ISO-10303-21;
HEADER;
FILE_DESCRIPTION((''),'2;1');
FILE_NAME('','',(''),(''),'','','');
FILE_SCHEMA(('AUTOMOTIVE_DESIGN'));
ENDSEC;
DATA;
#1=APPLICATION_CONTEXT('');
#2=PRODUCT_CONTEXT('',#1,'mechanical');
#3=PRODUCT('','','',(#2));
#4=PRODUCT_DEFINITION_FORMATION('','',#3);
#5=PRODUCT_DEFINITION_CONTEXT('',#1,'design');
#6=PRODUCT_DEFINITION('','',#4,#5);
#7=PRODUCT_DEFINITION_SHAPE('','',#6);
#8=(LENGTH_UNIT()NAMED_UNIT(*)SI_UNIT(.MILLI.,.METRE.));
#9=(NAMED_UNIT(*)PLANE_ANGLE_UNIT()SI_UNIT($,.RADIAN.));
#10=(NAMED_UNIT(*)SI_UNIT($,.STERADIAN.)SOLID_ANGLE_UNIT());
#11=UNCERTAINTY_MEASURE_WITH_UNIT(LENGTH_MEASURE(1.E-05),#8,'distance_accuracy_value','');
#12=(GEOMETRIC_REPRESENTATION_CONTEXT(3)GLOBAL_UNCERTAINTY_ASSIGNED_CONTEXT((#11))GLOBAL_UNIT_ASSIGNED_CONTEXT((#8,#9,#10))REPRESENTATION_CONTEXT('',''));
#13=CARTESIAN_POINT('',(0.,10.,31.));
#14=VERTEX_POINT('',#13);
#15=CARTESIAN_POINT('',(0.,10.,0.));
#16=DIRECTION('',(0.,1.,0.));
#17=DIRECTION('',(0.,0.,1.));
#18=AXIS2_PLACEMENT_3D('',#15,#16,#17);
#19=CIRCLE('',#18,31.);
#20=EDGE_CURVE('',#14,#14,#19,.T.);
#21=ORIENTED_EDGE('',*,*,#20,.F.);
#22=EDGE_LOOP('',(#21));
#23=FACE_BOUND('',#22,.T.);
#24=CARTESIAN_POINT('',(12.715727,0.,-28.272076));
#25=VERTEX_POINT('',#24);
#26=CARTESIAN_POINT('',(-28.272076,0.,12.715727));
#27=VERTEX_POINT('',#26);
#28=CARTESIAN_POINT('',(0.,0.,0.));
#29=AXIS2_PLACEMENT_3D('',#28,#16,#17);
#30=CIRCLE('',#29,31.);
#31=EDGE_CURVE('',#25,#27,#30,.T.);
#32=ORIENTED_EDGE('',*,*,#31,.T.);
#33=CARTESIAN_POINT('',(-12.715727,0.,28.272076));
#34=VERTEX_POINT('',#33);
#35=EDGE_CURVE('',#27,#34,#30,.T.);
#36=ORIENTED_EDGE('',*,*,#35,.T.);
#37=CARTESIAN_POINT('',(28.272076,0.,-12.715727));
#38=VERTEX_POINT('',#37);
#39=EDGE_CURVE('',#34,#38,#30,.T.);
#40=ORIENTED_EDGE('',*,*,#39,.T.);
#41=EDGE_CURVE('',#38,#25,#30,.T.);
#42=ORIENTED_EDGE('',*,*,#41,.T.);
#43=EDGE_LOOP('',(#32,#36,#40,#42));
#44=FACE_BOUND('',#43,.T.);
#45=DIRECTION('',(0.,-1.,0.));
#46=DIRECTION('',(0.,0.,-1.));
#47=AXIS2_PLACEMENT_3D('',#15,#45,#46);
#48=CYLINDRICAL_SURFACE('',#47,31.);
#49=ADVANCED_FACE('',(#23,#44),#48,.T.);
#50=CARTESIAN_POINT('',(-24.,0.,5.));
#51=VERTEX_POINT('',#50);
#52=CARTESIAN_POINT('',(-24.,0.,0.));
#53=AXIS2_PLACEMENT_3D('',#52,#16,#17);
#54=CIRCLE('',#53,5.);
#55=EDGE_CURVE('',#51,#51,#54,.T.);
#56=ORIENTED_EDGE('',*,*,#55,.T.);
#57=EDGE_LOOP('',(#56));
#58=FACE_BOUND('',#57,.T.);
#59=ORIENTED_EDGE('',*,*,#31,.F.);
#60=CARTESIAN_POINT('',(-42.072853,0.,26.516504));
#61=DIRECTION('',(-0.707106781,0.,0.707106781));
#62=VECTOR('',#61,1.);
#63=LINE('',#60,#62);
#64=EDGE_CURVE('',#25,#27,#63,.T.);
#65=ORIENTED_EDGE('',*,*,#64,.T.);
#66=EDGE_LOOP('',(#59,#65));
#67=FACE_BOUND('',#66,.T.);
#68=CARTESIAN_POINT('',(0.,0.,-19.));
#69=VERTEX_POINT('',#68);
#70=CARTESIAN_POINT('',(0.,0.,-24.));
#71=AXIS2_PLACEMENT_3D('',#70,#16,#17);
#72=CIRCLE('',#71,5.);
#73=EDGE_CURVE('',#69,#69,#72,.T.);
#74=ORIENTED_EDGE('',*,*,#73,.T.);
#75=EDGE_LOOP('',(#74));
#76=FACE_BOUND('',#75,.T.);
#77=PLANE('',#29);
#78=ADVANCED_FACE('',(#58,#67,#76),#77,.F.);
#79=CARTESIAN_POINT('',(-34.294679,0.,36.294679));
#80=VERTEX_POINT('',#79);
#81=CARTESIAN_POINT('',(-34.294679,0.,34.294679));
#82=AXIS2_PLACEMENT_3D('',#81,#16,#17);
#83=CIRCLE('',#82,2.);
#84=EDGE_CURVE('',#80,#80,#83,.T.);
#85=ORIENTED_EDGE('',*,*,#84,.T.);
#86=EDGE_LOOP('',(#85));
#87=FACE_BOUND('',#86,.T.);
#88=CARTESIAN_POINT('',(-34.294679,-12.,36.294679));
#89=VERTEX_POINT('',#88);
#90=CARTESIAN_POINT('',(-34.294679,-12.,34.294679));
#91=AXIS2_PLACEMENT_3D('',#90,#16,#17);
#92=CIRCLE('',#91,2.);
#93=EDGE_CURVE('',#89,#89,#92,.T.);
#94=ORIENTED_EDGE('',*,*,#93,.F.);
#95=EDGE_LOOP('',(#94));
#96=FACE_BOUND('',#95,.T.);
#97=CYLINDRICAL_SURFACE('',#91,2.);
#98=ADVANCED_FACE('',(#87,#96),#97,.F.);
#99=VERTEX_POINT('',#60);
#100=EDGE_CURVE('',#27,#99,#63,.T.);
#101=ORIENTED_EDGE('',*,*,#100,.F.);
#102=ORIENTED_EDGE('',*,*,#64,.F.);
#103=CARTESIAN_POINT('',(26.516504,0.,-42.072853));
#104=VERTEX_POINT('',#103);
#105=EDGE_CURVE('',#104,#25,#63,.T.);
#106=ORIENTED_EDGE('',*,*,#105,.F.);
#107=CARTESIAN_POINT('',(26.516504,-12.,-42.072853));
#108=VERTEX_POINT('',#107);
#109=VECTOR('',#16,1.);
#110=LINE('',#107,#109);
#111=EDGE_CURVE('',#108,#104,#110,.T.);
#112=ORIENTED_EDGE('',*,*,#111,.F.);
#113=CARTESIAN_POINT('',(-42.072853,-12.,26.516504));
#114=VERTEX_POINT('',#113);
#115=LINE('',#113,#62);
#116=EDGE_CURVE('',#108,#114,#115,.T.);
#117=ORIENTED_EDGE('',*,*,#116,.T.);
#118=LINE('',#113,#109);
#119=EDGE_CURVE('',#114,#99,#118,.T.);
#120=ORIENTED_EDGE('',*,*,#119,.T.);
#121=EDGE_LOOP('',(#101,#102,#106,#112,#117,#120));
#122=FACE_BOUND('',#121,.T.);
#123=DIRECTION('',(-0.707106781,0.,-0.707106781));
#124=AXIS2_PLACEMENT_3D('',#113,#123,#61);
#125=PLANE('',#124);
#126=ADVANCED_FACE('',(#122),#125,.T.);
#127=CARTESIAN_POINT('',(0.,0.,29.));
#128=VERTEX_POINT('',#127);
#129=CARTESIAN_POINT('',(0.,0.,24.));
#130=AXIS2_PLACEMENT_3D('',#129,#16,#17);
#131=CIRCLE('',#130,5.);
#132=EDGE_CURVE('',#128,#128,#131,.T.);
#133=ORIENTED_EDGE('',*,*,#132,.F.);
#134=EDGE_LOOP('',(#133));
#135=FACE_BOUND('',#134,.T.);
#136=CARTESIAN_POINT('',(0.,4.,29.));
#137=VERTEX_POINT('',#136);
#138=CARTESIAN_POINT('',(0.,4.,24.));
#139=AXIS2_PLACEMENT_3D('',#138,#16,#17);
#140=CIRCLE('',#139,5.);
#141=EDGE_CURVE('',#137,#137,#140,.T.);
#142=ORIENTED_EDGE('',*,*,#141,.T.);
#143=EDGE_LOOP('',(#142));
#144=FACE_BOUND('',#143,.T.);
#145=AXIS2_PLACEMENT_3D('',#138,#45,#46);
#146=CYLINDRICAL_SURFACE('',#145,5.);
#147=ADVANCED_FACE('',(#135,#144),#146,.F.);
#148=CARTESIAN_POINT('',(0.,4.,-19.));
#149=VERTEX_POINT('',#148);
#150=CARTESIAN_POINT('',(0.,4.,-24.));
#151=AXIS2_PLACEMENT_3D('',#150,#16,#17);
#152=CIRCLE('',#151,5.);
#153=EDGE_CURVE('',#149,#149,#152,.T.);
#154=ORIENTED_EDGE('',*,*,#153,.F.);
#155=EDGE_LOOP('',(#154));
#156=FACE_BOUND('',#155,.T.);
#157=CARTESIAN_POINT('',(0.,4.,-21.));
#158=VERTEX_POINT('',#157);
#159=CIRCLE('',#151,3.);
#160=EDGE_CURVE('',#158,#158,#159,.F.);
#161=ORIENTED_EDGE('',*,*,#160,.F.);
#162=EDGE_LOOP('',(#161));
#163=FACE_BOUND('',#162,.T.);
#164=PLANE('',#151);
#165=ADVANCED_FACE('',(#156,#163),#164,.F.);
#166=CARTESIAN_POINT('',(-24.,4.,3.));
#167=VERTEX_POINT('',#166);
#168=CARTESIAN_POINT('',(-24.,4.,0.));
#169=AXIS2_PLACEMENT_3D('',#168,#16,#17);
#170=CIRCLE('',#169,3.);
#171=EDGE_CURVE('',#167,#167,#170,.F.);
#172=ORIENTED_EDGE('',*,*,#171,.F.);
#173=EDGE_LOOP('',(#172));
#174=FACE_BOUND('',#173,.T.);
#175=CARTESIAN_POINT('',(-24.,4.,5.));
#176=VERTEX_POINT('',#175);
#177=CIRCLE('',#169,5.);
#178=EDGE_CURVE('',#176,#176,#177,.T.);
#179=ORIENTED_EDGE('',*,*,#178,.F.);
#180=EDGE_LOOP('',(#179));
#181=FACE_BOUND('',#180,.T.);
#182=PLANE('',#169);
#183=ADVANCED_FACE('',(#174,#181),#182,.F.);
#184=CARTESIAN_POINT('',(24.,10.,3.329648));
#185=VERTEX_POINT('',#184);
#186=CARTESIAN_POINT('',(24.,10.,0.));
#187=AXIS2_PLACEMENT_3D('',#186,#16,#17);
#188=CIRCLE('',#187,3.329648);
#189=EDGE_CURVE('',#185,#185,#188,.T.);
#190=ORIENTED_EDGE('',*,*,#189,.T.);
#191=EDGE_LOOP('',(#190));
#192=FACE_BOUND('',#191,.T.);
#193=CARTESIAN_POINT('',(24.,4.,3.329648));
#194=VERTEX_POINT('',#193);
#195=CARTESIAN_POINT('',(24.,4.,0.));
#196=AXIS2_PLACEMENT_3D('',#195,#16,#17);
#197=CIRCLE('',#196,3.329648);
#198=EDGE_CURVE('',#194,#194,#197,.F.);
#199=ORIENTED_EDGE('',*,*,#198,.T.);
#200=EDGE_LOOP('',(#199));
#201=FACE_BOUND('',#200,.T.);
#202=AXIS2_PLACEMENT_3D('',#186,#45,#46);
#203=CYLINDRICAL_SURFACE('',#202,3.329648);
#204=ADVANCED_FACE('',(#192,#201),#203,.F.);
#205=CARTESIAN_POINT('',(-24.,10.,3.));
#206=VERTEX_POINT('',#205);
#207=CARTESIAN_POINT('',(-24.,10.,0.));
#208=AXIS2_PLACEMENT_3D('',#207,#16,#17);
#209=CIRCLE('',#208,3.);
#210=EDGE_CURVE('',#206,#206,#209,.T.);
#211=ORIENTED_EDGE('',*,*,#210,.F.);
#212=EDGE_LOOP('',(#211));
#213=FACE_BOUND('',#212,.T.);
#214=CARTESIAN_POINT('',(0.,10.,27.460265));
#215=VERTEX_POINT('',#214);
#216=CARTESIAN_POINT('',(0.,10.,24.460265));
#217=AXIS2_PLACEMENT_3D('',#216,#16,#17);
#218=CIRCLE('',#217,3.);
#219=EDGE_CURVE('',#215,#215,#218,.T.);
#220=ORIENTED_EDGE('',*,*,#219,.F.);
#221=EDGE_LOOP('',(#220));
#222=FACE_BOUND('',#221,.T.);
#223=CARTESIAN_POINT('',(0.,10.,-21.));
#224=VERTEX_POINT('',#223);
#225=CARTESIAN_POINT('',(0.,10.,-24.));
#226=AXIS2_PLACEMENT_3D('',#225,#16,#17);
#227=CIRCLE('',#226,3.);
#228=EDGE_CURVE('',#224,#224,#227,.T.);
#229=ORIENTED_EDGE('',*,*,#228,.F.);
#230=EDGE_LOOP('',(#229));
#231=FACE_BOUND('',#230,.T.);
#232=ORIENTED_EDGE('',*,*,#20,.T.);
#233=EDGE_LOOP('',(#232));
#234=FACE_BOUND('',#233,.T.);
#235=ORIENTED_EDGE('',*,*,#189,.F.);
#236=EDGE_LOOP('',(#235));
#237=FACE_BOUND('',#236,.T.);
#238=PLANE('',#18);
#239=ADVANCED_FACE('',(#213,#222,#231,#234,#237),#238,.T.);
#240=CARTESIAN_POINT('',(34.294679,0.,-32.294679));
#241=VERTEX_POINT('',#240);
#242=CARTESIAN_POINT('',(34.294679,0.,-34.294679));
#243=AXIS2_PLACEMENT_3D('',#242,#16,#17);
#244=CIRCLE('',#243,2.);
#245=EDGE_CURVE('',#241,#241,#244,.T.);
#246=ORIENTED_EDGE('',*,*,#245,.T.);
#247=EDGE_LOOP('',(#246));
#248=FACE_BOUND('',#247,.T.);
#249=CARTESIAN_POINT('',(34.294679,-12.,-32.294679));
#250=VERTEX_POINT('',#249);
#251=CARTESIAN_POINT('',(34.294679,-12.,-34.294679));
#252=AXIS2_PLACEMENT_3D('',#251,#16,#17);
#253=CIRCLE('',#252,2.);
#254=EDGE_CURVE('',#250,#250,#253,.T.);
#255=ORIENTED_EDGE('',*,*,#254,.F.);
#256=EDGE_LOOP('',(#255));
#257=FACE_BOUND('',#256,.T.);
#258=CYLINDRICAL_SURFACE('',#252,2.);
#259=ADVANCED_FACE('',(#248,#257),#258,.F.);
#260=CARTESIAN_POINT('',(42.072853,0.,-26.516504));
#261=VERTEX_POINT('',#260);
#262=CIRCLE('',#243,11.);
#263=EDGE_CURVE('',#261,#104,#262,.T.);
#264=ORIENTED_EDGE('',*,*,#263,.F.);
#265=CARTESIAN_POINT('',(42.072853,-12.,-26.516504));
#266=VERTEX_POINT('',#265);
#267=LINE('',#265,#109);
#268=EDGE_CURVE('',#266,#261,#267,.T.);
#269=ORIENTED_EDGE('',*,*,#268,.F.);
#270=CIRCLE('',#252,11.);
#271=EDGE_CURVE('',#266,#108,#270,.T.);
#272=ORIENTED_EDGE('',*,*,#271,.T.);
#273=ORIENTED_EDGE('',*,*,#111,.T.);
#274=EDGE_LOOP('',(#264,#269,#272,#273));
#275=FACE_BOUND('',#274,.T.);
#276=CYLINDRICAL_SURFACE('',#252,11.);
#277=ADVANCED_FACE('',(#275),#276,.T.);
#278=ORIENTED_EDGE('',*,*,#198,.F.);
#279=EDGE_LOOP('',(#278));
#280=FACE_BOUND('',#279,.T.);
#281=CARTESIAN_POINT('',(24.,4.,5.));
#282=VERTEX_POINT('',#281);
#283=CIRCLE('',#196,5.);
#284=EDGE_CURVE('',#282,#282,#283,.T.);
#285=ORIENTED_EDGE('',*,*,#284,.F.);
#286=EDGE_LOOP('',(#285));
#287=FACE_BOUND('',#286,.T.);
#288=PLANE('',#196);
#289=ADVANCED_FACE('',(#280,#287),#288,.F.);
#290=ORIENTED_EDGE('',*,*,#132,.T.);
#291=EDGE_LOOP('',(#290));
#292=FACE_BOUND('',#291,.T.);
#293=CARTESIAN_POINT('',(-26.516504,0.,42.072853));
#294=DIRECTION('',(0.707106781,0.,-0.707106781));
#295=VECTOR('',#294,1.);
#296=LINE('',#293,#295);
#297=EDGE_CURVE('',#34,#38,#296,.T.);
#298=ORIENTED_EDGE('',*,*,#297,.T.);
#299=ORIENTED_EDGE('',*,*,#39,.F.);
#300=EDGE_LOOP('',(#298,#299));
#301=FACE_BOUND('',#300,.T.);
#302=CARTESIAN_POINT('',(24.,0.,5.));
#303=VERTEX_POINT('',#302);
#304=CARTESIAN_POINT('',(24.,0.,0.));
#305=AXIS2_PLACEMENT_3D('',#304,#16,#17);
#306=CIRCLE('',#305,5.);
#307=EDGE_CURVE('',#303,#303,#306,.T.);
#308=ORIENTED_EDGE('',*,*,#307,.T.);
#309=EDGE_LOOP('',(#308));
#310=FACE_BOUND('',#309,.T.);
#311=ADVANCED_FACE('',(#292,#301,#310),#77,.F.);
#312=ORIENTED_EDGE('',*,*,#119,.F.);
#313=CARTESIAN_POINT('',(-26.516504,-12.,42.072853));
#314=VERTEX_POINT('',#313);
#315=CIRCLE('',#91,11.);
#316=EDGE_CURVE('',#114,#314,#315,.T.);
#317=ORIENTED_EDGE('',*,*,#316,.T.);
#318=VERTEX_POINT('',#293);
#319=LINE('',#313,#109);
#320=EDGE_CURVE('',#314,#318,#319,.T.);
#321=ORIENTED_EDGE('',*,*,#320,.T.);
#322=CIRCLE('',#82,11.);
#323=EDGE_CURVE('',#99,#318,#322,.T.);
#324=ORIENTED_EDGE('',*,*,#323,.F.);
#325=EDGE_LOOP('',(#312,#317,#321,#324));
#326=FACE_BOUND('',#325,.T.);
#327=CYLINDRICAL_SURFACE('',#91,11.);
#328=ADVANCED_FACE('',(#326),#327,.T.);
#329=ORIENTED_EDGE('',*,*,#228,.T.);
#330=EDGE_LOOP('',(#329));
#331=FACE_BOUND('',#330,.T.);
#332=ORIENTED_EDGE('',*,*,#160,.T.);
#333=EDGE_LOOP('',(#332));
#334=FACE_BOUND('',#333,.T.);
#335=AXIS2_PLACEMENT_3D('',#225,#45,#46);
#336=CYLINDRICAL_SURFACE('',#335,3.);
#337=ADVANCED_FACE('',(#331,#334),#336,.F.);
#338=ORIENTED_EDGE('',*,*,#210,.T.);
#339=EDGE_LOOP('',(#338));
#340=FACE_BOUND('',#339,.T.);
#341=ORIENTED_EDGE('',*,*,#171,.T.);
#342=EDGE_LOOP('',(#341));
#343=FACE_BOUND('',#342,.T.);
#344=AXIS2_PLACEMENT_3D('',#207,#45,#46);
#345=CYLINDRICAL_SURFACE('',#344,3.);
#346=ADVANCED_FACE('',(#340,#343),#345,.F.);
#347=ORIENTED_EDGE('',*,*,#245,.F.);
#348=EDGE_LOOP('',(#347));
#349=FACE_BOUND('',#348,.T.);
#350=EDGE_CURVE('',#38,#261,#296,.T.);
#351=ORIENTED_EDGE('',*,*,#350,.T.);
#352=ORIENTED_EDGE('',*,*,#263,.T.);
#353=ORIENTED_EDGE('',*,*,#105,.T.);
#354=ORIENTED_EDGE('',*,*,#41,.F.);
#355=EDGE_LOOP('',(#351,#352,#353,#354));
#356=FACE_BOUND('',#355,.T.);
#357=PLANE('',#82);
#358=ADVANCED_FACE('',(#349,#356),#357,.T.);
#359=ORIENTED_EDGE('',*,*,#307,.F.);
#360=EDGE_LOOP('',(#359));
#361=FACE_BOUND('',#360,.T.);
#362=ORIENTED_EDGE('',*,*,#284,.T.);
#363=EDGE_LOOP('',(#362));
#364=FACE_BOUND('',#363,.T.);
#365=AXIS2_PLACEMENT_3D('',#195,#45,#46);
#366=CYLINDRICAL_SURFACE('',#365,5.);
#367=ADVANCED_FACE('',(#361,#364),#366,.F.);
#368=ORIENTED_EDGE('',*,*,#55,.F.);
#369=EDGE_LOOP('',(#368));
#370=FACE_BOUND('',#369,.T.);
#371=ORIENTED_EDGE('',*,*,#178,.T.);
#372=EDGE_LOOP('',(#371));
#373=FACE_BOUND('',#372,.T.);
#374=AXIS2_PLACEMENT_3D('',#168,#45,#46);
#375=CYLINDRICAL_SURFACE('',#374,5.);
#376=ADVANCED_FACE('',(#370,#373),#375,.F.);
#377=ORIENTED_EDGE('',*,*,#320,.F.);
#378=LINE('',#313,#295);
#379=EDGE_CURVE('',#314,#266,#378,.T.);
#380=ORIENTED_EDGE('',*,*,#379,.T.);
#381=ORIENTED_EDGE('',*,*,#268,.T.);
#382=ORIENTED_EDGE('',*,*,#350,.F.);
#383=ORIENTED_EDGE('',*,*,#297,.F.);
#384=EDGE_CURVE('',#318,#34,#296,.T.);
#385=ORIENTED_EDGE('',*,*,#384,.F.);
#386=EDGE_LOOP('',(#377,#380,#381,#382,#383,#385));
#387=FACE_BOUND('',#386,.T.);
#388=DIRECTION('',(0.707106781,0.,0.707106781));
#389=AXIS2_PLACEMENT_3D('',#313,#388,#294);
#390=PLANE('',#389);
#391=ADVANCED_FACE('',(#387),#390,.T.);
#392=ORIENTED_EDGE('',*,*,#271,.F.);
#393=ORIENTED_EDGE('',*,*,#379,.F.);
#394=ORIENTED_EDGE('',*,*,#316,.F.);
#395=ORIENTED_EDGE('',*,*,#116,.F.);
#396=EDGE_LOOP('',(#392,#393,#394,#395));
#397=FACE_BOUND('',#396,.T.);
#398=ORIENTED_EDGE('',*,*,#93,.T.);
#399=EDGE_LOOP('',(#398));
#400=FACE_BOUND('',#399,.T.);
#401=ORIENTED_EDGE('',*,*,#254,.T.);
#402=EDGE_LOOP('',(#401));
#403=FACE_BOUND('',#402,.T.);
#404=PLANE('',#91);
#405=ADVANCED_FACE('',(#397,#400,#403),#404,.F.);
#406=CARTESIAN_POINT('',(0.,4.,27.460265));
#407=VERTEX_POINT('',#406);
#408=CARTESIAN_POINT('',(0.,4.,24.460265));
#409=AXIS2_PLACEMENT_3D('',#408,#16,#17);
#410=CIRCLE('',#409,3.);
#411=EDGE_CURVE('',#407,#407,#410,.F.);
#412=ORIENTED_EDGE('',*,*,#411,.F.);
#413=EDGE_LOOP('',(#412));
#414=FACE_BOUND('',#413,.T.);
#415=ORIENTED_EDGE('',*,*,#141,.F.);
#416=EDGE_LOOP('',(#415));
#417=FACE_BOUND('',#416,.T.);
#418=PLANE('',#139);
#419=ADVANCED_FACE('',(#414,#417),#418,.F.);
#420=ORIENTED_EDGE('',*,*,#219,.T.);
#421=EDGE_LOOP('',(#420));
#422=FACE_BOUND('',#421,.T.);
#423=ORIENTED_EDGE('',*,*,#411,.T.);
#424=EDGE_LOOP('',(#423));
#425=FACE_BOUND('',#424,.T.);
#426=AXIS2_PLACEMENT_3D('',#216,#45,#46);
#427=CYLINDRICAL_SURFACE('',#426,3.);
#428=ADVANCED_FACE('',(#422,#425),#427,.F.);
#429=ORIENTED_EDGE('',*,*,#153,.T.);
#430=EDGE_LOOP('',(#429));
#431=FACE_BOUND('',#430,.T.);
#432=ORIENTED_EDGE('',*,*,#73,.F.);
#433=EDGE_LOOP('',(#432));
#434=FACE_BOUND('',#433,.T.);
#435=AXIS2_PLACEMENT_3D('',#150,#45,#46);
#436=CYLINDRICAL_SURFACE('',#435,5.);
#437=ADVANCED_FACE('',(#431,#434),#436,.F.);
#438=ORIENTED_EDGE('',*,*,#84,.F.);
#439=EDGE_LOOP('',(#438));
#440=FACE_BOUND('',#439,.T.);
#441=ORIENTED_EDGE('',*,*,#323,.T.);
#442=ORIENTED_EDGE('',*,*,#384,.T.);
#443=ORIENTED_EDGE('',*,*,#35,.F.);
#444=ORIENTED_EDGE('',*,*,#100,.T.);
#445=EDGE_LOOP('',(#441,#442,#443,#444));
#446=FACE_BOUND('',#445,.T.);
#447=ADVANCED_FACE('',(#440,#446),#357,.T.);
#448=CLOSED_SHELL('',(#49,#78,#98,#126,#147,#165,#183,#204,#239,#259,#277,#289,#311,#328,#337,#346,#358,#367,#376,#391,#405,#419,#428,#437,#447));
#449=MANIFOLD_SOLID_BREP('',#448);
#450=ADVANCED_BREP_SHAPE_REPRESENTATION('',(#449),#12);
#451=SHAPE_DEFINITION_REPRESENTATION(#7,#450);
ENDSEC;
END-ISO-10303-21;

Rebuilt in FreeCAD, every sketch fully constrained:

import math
import FreeCAD as App
import Part
import Sketcher
Q = App.Units.Quantity

doc = App.newDocument("Part")
params = doc.addObject("Spreadsheet::Sheet", "Params")
for row, (alias, value) in enumerate([
    ("sketch1_diameter", "62 mm"),
    ("pad1_length", "10 mm"),
    ("sketch2_diameter", "10 mm"),
    ("pocket1_length", "4 mm"),
    ("sketch3_diameter", "10 mm"),
    ("pocket2_length", "4 mm"),
    ("sketch4_diameter", "6 mm"),
    ("pocket3_length", "10 mm"),
    ("sketch5_diameter", "4 mm"),
    ("sketch5_radius", "11 mm"),
    ("sketch5_length", "97 mm"),
    ("pad2_length", "12 mm"),
], start=1):
    params.set(f"A{row}", alias)
    params.set(f"B{row}", "=" + value)
    params.setAlias(f"B{row}", alias)

body = doc.addObject("PartDesign::Body", "Body")

# Sketch on XZ plane
sketch1 = doc.addObject("Sketcher::SketchObject", "Sketch")
body.addObject(sketch1)
sketch1.AttachmentSupport = (doc.XZ_Plane, [""])
sketch1.MapMode = "FlatFace"
sketch1.addGeometry(Part.Circle(App.Vector(0, 0, 0), App.Vector(0, 0, 1), 31), False)
sketch1.addConstraint([
    Sketcher.Constraint("Coincident", 0, 3, -1, 1),
    Sketcher.Constraint("Diameter", 0, 62.0),
])
sketch1.setExpression("Constraints[1]", "Params.sketch1_diameter")
pad1 = doc.addObject("PartDesign::Pad", "Pad")
body.addObject(pad1)
pad1.Profile = sketch1
pad1.setExpression("Length", "Params.pad1_length")
pad1.Reversed = True

# Sketch on XZ plane
sketch2 = doc.addObject("Sketcher::SketchObject", "Sketch001")
body.addObject(sketch2)
sketch2.AttachmentSupport = (doc.XZ_Plane, [""])
sketch2.MapMode = "FlatFace"
sketch2.addGeometry(Part.Circle(App.Vector(0, -24, 0), App.Vector(0, 0, 1), 5), False)
sketch2.addConstraint([
    Sketcher.Constraint("PointOnObject", 0, 3, -2),
    Sketcher.Constraint("Diameter", 0, 10.0),
    Sketcher.Constraint("DistanceY", 0, 3, -1, 1, 24.0),
])
sketch2.setExpression("Constraints[1]", "Params.sketch2_diameter")
pocket1 = doc.addObject("PartDesign::Pocket", "Pocket")
body.addObject(pocket1)
pocket1.Profile = sketch2
pocket1.setExpression("Length", "Params.pocket1_length")

# Sketch on XZ plane
sketch3 = doc.addObject("Sketcher::SketchObject", "Sketch002")
body.addObject(sketch3)
sketch3.AttachmentSupport = (doc.XZ_Plane, [""])
sketch3.MapMode = "FlatFace"
sketch3.addGeometry([
    Part.Circle(App.Vector(-24, 0, 0), App.Vector(0, 0, 1), 5),
    Part.Circle(App.Vector(24, 0, 0), App.Vector(0, 0, 1), 5),
    Part.Circle(App.Vector(0, 24, 0), App.Vector(0, 0, 1), 5),
], False)
sketch3.addConstraint([
    Sketcher.Constraint("Equal", 0, 1),
    Sketcher.Constraint("Equal", 1, 2),
    Sketcher.Constraint("Symmetric", 0, 3, 1, 3, -1, 1),
    Sketcher.Constraint("PointOnObject", 0, 3, -1),
    Sketcher.Constraint("PointOnObject", 2, 3, -2),
    Sketcher.Constraint("Diameter", 0, 10.0),
    Sketcher.Constraint("DistanceX", 0, 3, -1, 1, 24.0),
    Sketcher.Constraint("DistanceY", -1, 1, 2, 3, 24.0),
])
sketch3.setExpression("Constraints[5]", "Params.sketch3_diameter")
pocket2 = doc.addObject("PartDesign::Pocket", "Pocket001")
body.addObject(pocket2)
pocket2.Profile = sketch3
pocket2.setExpression("Length", "Params.pocket2_length")

# Sketch on XZ plane
sketch4 = doc.addObject("Sketcher::SketchObject", "Sketch003")
body.addObject(sketch4)
sketch4.AttachmentSupport = (doc.XZ_Plane, [""])
sketch4.MapMode = "FlatFace"
sketch4.addGeometry([
    Part.Circle(App.Vector(0, 24.5, 0), App.Vector(0, 0, 1), 3),
    Part.Circle(App.Vector(-24, 0, 0), App.Vector(0, 0, 1), 3),
    Part.Circle(App.Vector(24, 0, 0), App.Vector(0, 0, 1), 3.3),
    Part.Circle(App.Vector(0, -24, 0), App.Vector(0, 0, 1), 3),
], False)
sketch4.addConstraint([
    Sketcher.Constraint("Equal", 0, 1),
    Sketcher.Constraint("Equal", 1, 3),
    Sketcher.Constraint("Symmetric", 1, 3, 2, 3, -1, 1),
    Sketcher.Constraint("PointOnObject", 0, 3, -2),
    Sketcher.Constraint("PointOnObject", 1, 3, -1),
    Sketcher.Constraint("PointOnObject", 3, 3, -2),
    Sketcher.Constraint("Diameter", 0, 6.0),
    Sketcher.Constraint("DistanceX", 1, 3, -1, 1, 24.0),
    Sketcher.Constraint("DistanceY", 3, 3, -1, 1, 24.0),
    Sketcher.Constraint("Diameter", 2, 6.659296),
    Sketcher.Constraint("DistanceY", -1, 1, 0, 3, 24.460265),
])
sketch4.setExpression("Constraints[6]", "Params.sketch4_diameter")
pocket3 = doc.addObject("PartDesign::Pocket", "Pocket002")
body.addObject(pocket3)
pocket3.Profile = sketch4
pocket3.setExpression("Length", "Params.pocket3_length")

# Sketch on XZ plane
sketch5 = doc.addObject("Sketcher::SketchObject", "Sketch004")
body.addObject(sketch5)
sketch5.AttachmentSupport = (doc.XZ_Plane, [""])
sketch5.MapMode = "FlatFace"
sketch5.addGeometry([
    Part.LineSegment(App.Vector(26.5, -42.1, 0), App.Vector(-42.1, 26.5, 0)),  # 0
    Part.ArcOfCircle(Part.Circle(App.Vector(-34.3, 34.3, 0), App.Vector(0, 0, 1), 11), math.radians(45), math.radians(225)),  # 1
    Part.LineSegment(App.Vector(-26.5, 42.1, 0), App.Vector(42.1, -26.5, 0)),  # 2
    Part.ArcOfCircle(Part.Circle(App.Vector(34.3, -34.3, 0), App.Vector(0, 0, 1), 11), math.radians(-135), math.radians(45)),  # 3
    Part.Circle(App.Vector(-34.3, 34.3, 0), App.Vector(0, 0, 1), 2),  # 4
    Part.Circle(App.Vector(34.3, -34.3, 0), App.Vector(0, 0, 1), 2),  # 5
], False)
sketch5.addConstraint([
    Sketcher.Constraint("Tangent", 0, 2, 1, 2),
    Sketcher.Constraint("Tangent", 1, 1, 2, 1),
    Sketcher.Constraint("Tangent", 2, 2, 3, 2),
    Sketcher.Constraint("Tangent", 3, 1, 0, 1),
    Sketcher.Constraint("Coincident", 4, 3, 1, 3),
    Sketcher.Constraint("Coincident", 5, 3, 3, 3),
    Sketcher.Constraint("Equal", 1, 3),
    Sketcher.Constraint("Equal", 4, 5),
    Sketcher.Constraint("Symmetric", 1, 3, 3, 3, -1, 1),
    Sketcher.Constraint("Diameter", 4, 4.0),
    Sketcher.Constraint("Radius", 1, 11.0),
    Sketcher.Constraint("Angle", 0, Q("135 deg")),
    Sketcher.Constraint("Distance", 0, 97.0),
])
sketch5.setExpression("Constraints[9]", "Params.sketch5_diameter")
sketch5.setExpression("Constraints[10]", "Params.sketch5_radius")
sketch5.setExpression("Constraints[12]", "Params.sketch5_length")
pad2 = doc.addObject("PartDesign::Pad", "Pad001")
body.addObject(pad2)
pad2.Profile = sketch5
pad2.setExpression("Length", "Params.pad2_length")

doc.recompute()
